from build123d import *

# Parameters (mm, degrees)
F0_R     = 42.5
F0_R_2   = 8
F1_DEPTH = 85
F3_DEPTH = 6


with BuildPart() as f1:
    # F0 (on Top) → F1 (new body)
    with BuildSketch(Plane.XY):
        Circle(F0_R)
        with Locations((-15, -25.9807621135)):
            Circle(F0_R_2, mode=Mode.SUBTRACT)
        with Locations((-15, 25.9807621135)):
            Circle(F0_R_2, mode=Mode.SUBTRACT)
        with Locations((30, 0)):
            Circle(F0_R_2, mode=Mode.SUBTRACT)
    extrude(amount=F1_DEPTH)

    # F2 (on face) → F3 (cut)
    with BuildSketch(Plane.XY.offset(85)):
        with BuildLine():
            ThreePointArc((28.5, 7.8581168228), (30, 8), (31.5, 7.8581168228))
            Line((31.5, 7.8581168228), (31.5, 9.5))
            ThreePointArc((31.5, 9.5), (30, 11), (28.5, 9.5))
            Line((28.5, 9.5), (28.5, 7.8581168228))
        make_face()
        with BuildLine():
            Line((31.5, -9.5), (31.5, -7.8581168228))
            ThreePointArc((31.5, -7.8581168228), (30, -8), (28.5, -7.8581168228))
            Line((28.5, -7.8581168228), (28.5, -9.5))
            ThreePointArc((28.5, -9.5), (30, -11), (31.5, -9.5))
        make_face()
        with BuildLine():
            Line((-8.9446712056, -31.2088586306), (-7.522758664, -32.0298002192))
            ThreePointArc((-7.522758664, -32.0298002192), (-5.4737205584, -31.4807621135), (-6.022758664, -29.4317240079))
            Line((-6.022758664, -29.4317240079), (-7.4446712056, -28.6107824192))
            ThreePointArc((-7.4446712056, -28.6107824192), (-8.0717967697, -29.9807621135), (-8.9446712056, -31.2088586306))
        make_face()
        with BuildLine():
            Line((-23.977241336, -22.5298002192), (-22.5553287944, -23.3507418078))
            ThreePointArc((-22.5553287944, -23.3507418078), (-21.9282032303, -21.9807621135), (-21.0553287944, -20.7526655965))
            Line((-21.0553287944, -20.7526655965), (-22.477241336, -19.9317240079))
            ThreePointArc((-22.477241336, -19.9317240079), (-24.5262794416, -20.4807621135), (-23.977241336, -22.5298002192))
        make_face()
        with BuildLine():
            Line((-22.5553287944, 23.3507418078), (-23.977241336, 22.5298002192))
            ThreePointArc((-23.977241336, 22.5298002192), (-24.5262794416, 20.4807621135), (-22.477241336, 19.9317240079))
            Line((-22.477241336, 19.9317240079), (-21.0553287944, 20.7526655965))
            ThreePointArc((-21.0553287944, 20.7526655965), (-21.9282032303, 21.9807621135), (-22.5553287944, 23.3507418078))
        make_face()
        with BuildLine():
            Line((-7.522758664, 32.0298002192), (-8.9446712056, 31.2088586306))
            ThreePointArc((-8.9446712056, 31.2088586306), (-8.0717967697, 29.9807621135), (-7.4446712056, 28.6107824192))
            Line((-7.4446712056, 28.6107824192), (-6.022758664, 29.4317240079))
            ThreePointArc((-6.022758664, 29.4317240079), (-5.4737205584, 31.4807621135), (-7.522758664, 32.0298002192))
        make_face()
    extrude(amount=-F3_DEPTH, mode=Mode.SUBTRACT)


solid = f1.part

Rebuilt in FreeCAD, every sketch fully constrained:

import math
import FreeCAD as App
import Part
import Sketcher
from FreeCAD import Vector
Q = App.Units.Quantity

doc = App.newDocument("Part")
body = doc.addObject("PartDesign::Body", "Body")

sketch1 = body.newObject("Sketcher::SketchObject", "Sketch")
sketch1.AttachmentSupport = (doc.getObject("XY_Plane"), [""])
sketch1.MapMode = "FlatFace"
sketch1.addGeometry([
    Part.Circle(Vector(0, 0, 0), Vector(0, 0, 1), 42),
    Part.Circle(Vector(-15, -26, 0), Vector(0, 0, 1), 8),
    Part.Circle(Vector(-15, 26, 0), Vector(0, 0, 1), 8),
    Part.Circle(Vector(30, 0, 0), Vector(0, 0, 1), 8),
], False)
sketch1.addConstraint([
    Sketcher.Constraint("Coincident", 0, 3, -1, 1),
    Sketcher.Constraint("Equal", 1, 2),
    Sketcher.Constraint("Equal", 2, 3),
    Sketcher.Constraint("Symmetric", 1, 3, 2, 3, -1),
    Sketcher.Constraint("PointOnObject", 3, 3, -1),
    Sketcher.Constraint("Diameter", 0, 85.0),
    Sketcher.Constraint("Diameter", 1, 16.0),
    Sketcher.Constraint("DistanceX", 1, 3, -1, 1, 15.0),
    Sketcher.Constraint("DistanceX", -1, 1, 3, 3, 30.0),
    Sketcher.Constraint("DistanceY", 1, 3, -1, 1, 25.980762),
])
pad1 = body.newObject("PartDesign::Pad", "Pad")
pad1.Profile = sketch1
pad1.Length = 85

sketch2 = body.newObject("Sketcher::SketchObject", "Sketch001")
sketch2.AttachmentSupport = (doc.getObject("XY_Plane"), [""])
sketch2.MapMode = "FlatFace"
sketch2.AttachmentOffset = App.Placement(Vector(0, 0, 85), App.Rotation())
sketch2.addGeometry([
    Part.ArcOfCircle(Part.Circle(Vector(30, 0, 0), Vector(0, 0, 1), 8), math.radians(79), math.radians(101)),
    Part.LineSegment(Vector(31.5, 7.9, 0), Vector(31.5, 9.5, 0)),
    Part.ArcOfCircle(Part.Circle(Vector(30, 9.5, 0), Vector(0, 0, 1), 1.5), math.radians(0), math.radians(180)),
    Part.LineSegment(Vector(28.5, 9.5, 0), Vector(28.5, 7.9, 0)),
    Part.LineSegment(Vector(31.5, -9.5, 0), Vector(31.5, -7.9, 0)),
    Part.ArcOfCircle(Part.Circle(Vector(30, 0, 0), Vector(0, 0, 1), 8), math.radians(-101), math.radians(-79)),
    Part.LineSegment(Vector(28.5, -7.9, 0), Vector(28.5, -9.5, 0)),
    Part.ArcOfCircle(Part.Circle(Vector(30, -9.5, 0), Vector(0, 0, 1), 1.5), math.radians(180), math.radians(360)),
    Part.LineSegment(Vector(-8.9, -31.2, 0), Vector(-7.5, -32, 0)),
    Part.ArcOfCircle(Part.Circle(Vector(-6.8, -30.7, 0), Vector(0, 0, 1), 1.5), math.radians(-120), math.radians(60)),
    Part.LineSegment(Vector(-6, -29.4, 0), Vector(-7.4, -28.6, 0)),
    Part.ArcOfCircle(Part.Circle(Vector(-15, -26, 0), Vector(0, 0, 1), 8), math.radians(-41), math.radians(-19)),
    Part.LineSegment(Vector(-24, -22.5, 0), Vector(-22.6, -23.4, 0)),
    Part.ArcOfCircle(Part.Circle(Vector(-15, -26, 0), Vector(0, 0, 1), 8), math.radians(139), math.radians(161)),
    Part.LineSegment(Vector(-21.1, -20.8, 0), Vector(-22.5, -19.9, 0)),
    Part.ArcOfCircle(Part.Circle(Vector(-23.2, -21.2, 0), Vector(0, 0, 1), 1.5), math.radians(60), math.radians(240)),
    Part.LineSegment(Vector(-22.6, 23.4, 0), Vector(-24, 22.5, 0)),
    Part.ArcOfCircle(Part.Circle(Vector(-23.2, 21.2, 0), Vector(0, 0, 1), 1.5), math.radians(120), math.radians(300)),
    Part.LineSegment(Vector(-22.5, 19.9, 0), Vector(-21.1, 20.8, 0)),
    Part.ArcOfCircle(Part.Circle(Vector(-15, 26, 0), Vector(0, 0, 1), 8), math.radians(-161), math.radians(-139)),
    Part.LineSegment(Vector(-7.5, 32, 0), Vector(-8.9, 31.2, 0)),
    Part.ArcOfCircle(Part.Circle(Vector(-15, 26, 0), Vector(0, 0, 1), 8), math.radians(19), math.radians(41)),
    Part.LineSegment(Vector(-7.4, 28.6, 0), Vector(-6, 29.4, 0)),
    Part.ArcOfCircle(Part.Circle(Vector(-6.8, 30.7, 0), Vector(0, 0, 1), 1.5), math.radians(-60), math.radians(120)),
], False)
sketch2.addConstraint([
    Sketcher.Constraint("Coincident", 0, 1, 1, 1),
    Sketcher.Constraint("Tangent", 1, 2, 2, 1),
    Sketcher.Constraint("Tangent", 2, 2, 3, 1),
    Sketcher.Constraint("Coincident", 3, 2, 0, 2),
    Sketcher.Constraint("Coincident", 4, 2, 5, 2),
    Sketcher.Constraint("Coincident", 5, 1, 6, 1),
    Sketcher.Constraint("Tangent", 6, 2, 7, 1),
    Sketcher.Constraint("Tangent", 7, 2, 4, 1),
    Sketcher.Constraint("Tangent", 8, 2, 9, 1),
    Sketcher.Constraint("Tangent", 9, 2, 10, 1),
    Sketcher.Constraint("Coincident", 10, 2, 11, 2),
    Sketcher.Constraint("Coincident", 11, 1, 8, 1),
    Sketcher.Constraint("Coincident", 12, 2, 13, 2),
    Sketcher.Constraint("Coincident", 13, 1, 14, 1),
    Sketcher.Constraint("Tangent", 14, 2, 15, 1),
    Sketcher.Constraint("Tangent", 15, 2, 12, 1),
    Sketcher.Constraint("Tangent", 16, 2, 17, 1),
    Sketcher.Constraint("Tangent", 17, 2, 18, 1),
    Sketcher.Constraint("Coincident", 18, 2, 19, 2),
    Sketcher.Constraint("Coincident", 19, 1, 16, 1),
    Sketcher.Constraint("Coincident", 20, 2, 21, 2),
    Sketcher.Constraint("Coincident", 21, 1, 22, 1),
    Sketcher.Constraint("Tangent", 22, 2, 23, 1),
    Sketcher.Constraint("Tangent", 23, 2, 20, 1),
    Sketcher.Constraint("Vertical", 1),
    Sketcher.Constraint("Vertical", 3),
    Sketcher.Constraint("Vertical", 4),
    Sketcher.Constraint("Vertical", 6),
    Sketcher.Constraint("Coincident", 5, 3, 0, 3),
    Sketcher.Constraint("Coincident", 13, 3, 11, 3),
    Sketcher.Constraint("Coincident", 21, 3, 19, 3),
    Sketcher.Constraint("Equal", 0, 5),
    Sketcher.Constraint("Equal", 2, 7),
    Sketcher.Constraint("Equal", 7, 9),
    Sketcher.Constraint("Equal", 5, 11),
    Sketcher.Constraint("Equal", 11, 13),
    Sketcher.Constraint("Equal", 9, 15),
    Sketcher.Constraint("Equal", 15, 17),
    Sketcher.Constraint("Equal", 13, 19),
    Sketcher.Constraint("Equal", 19, 21),
    Sketcher.Constraint("Equal", 17, 23),
    Sketcher.Constraint("Symmetric", 2, 3, 7, 3, -1),
    Sketcher.Constraint("Symmetric", 15, 3, 17, 3, -1),
    Sketcher.Constraint("Symmetric", 11, 3, 19, 3, -1),
    Sketcher.Constraint("Symmetric", 9, 3, 23, 3, -1),
    Sketcher.Constraint("PointOnObject", 0, 3, -1),
    Sketcher.Constraint("Parallel", 8, 10),
    Sketcher.Constraint("Parallel", 10, 12),
    Sketcher.Constraint("Parallel", 12, 14),
    Sketcher.Constraint("Parallel", 16, 18),
    Sketcher.Constraint("Parallel", 18, 20),
    Sketcher.Constraint("Parallel", 20, 22),
    Sketcher.Constraint("Horizontal", 0, 1, 3, 2),
    Sketcher.Constraint("Vertical", 15, 2, 16, 2),
    Sketcher.Constraint("Equal", 8, 10),
    Sketcher.Constraint("Equal", 10, 12),
    Sketcher.Constraint("Equal", 12, 14),
    Sketcher.Constraint("Radius", 0, 8.0),
    Sketcher.Constraint("Radius", 2, 1.5),
    Sketcher.Constraint("Angle", 8, Q("-30 deg")),
    Sketcher.Constraint("DistanceX", -1, 1, 0, 3, 30.0),
    Sketcher.Constraint("DistanceX", 11, 3, -1, 1, 15.0),
    Sketcher.Constraint("DistanceY", 7, 3, 2, 3, 19.0),
    Sketcher.Constraint("DistanceY", 9, 3, 15, 3, 9.5),
    Sketcher.Constraint("DistanceY", 8, 2, -1, 1, 32.0298),
])
pocket1 = body.newObject("PartDesign::Pocket", "Pocket")
pocket1.Profile = sketch2
pocket1.Length = 6

doc.recompute()
